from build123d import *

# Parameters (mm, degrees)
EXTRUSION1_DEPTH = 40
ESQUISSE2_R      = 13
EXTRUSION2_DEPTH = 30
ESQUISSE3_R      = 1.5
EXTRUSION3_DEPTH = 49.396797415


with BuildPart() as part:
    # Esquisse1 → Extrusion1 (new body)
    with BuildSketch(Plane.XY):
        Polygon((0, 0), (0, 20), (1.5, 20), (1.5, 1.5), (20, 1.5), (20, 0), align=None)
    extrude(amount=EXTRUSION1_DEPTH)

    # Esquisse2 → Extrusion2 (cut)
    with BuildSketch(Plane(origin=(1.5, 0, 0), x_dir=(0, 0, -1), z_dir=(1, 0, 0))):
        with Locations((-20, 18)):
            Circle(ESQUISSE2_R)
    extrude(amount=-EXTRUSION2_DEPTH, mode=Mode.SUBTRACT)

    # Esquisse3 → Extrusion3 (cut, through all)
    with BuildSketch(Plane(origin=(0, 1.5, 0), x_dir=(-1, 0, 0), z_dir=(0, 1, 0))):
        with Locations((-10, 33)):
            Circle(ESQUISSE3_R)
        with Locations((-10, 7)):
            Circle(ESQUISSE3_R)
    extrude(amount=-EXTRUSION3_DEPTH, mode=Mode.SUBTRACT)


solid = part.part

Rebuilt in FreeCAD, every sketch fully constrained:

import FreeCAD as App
import Part
import Sketcher
from FreeCAD import Vector


def add_polygon(sketch, points):
    """Adds a closed chain of lines whose ends are joined by coincident constraints."""
    first, n = sketch.GeometryCount, len(points)
    for a, b in zip(points, points[1:] + points[:1]):
        sketch.addGeometry(Part.LineSegment(App.Vector(*a, 0), App.Vector(*b, 0)), False)
    for i in range(n):
        sketch.addConstraint(Sketcher.Constraint("Coincident", first + i, 2, first + (i + 1) % n, 1))

doc = App.newDocument("Part")
body = doc.addObject("PartDesign::Body", "Body")

# Sketch on XY plane
sketch1 = doc.addObject("Sketcher::SketchObject", "Sketch")
body.addObject(sketch1)
sketch1.AttachmentSupport = (doc.XY_Plane, [""])
sketch1.MapMode = "FlatFace"
add_polygon(sketch1, [(0, 20), (0, 0), (20, 0), (20, 1.5), (1.5, 1.5), (1.5, 20)])  # lines 0-5
sketch1.addConstraint(Sketcher.Constraint("Vertical", 0))
sketch1.addConstraint(Sketcher.Constraint("Horizontal", 1))
sketch1.addConstraint(Sketcher.Constraint("Vertical", 2))
sketch1.addConstraint(Sketcher.Constraint("Horizontal", 3))
sketch1.addConstraint(Sketcher.Constraint("Vertical", 4))
sketch1.addConstraint(Sketcher.Constraint("Horizontal", 5))
sketch1.addConstraint(Sketcher.Constraint("Coincident", 0, 2, -1, 1))
sketch1.addConstraint(Sketcher.Constraint("Equal", 1, 0))
sketch1.addConstraint(Sketcher.Constraint("Equal", 5, 2))
sketch1.addConstraint(Sketcher.Constraint("DistanceX", 1, 1, 1, 2, 20.0))
sketch1.addConstraint(Sketcher.Constraint("DistanceX", 3, 2, 3, 1, 18.5))
pad1 = doc.addObject("PartDesign::Pad", "Pad")
body.addObject(pad1)
pad1.Profile = sketch1
pad1.Length = 40

# Sketch on YZ plane
sketch2 = doc.addObject("Sketcher::SketchObject", "Sketch001")
body.addObject(sketch2)
sketch2.AttachmentSupport = (doc.YZ_Plane, [""])
sketch2.MapMode = "FlatFace"
sketch2.AttachmentOffset = App.Placement(Vector(0, 0, 1.5), App.Rotation())
sketch2.addGeometry(Part.Circle(Vector(18, 20, 0), Vector(0, 0, 1), 13), False)
sketch2.addConstraint(Sketcher.Constraint("Diameter", 0, 26.0))
sketch2.addConstraint(Sketcher.Constraint("DistanceX", -1, 1, 0, 3, 18.0))
sketch2.addConstraint(Sketcher.Constraint("DistanceY", -1, 1, 0, 3, 20.0))
pocket1 = doc.addObject("PartDesign::Pocket", "Pocket")
body.addObject(pocket1)
pocket1.Profile = sketch2
pocket1.Length = 30

# Sketch on XZ plane
sketch3 = doc.addObject("Sketcher::SketchObject", "Sketch002")
body.addObject(sketch3)
sketch3.AttachmentSupport = (doc.XZ_Plane, [""])
sketch3.MapMode = "FlatFace"
sketch3.AttachmentOffset = App.Placement(Vector(0, 0, -1.5), App.Rotation())
sketch3.addGeometry(Part.Circle(Vector(10, 33, 0), Vector(0, 0, 1), 1.5), False)
sketch3.addGeometry(Part.Circle(Vector(10, 7, 0), Vector(0, 0, 1), 1.5), False)
sketch3.addConstraint(Sketcher.Constraint("Equal", 0, 1))
sketch3.addConstraint(Sketcher.Constraint("Vertical", 0, 3, 1, 3))
sketch3.addConstraint(Sketcher.Constraint("Diameter", 0, 3.0))
sketch3.addConstraint(Sketcher.Constraint("DistanceX", -1, 1, 0, 3, 10.0))
sketch3.addConstraint(Sketcher.Constraint("DistanceY", -1, 1, 0, 3, 33.0))
sketch3.addConstraint(Sketcher.Constraint("DistanceY", -1, 1, 1, 3, 7.0))
pocket2 = doc.addObject("PartDesign::Pocket", "Pocket001")
body.addObject(pocket2)
pocket2.Profile = sketch3
pocket2.Type = "ThroughAll"
pocket2.Reversed = True

doc.recompute()
